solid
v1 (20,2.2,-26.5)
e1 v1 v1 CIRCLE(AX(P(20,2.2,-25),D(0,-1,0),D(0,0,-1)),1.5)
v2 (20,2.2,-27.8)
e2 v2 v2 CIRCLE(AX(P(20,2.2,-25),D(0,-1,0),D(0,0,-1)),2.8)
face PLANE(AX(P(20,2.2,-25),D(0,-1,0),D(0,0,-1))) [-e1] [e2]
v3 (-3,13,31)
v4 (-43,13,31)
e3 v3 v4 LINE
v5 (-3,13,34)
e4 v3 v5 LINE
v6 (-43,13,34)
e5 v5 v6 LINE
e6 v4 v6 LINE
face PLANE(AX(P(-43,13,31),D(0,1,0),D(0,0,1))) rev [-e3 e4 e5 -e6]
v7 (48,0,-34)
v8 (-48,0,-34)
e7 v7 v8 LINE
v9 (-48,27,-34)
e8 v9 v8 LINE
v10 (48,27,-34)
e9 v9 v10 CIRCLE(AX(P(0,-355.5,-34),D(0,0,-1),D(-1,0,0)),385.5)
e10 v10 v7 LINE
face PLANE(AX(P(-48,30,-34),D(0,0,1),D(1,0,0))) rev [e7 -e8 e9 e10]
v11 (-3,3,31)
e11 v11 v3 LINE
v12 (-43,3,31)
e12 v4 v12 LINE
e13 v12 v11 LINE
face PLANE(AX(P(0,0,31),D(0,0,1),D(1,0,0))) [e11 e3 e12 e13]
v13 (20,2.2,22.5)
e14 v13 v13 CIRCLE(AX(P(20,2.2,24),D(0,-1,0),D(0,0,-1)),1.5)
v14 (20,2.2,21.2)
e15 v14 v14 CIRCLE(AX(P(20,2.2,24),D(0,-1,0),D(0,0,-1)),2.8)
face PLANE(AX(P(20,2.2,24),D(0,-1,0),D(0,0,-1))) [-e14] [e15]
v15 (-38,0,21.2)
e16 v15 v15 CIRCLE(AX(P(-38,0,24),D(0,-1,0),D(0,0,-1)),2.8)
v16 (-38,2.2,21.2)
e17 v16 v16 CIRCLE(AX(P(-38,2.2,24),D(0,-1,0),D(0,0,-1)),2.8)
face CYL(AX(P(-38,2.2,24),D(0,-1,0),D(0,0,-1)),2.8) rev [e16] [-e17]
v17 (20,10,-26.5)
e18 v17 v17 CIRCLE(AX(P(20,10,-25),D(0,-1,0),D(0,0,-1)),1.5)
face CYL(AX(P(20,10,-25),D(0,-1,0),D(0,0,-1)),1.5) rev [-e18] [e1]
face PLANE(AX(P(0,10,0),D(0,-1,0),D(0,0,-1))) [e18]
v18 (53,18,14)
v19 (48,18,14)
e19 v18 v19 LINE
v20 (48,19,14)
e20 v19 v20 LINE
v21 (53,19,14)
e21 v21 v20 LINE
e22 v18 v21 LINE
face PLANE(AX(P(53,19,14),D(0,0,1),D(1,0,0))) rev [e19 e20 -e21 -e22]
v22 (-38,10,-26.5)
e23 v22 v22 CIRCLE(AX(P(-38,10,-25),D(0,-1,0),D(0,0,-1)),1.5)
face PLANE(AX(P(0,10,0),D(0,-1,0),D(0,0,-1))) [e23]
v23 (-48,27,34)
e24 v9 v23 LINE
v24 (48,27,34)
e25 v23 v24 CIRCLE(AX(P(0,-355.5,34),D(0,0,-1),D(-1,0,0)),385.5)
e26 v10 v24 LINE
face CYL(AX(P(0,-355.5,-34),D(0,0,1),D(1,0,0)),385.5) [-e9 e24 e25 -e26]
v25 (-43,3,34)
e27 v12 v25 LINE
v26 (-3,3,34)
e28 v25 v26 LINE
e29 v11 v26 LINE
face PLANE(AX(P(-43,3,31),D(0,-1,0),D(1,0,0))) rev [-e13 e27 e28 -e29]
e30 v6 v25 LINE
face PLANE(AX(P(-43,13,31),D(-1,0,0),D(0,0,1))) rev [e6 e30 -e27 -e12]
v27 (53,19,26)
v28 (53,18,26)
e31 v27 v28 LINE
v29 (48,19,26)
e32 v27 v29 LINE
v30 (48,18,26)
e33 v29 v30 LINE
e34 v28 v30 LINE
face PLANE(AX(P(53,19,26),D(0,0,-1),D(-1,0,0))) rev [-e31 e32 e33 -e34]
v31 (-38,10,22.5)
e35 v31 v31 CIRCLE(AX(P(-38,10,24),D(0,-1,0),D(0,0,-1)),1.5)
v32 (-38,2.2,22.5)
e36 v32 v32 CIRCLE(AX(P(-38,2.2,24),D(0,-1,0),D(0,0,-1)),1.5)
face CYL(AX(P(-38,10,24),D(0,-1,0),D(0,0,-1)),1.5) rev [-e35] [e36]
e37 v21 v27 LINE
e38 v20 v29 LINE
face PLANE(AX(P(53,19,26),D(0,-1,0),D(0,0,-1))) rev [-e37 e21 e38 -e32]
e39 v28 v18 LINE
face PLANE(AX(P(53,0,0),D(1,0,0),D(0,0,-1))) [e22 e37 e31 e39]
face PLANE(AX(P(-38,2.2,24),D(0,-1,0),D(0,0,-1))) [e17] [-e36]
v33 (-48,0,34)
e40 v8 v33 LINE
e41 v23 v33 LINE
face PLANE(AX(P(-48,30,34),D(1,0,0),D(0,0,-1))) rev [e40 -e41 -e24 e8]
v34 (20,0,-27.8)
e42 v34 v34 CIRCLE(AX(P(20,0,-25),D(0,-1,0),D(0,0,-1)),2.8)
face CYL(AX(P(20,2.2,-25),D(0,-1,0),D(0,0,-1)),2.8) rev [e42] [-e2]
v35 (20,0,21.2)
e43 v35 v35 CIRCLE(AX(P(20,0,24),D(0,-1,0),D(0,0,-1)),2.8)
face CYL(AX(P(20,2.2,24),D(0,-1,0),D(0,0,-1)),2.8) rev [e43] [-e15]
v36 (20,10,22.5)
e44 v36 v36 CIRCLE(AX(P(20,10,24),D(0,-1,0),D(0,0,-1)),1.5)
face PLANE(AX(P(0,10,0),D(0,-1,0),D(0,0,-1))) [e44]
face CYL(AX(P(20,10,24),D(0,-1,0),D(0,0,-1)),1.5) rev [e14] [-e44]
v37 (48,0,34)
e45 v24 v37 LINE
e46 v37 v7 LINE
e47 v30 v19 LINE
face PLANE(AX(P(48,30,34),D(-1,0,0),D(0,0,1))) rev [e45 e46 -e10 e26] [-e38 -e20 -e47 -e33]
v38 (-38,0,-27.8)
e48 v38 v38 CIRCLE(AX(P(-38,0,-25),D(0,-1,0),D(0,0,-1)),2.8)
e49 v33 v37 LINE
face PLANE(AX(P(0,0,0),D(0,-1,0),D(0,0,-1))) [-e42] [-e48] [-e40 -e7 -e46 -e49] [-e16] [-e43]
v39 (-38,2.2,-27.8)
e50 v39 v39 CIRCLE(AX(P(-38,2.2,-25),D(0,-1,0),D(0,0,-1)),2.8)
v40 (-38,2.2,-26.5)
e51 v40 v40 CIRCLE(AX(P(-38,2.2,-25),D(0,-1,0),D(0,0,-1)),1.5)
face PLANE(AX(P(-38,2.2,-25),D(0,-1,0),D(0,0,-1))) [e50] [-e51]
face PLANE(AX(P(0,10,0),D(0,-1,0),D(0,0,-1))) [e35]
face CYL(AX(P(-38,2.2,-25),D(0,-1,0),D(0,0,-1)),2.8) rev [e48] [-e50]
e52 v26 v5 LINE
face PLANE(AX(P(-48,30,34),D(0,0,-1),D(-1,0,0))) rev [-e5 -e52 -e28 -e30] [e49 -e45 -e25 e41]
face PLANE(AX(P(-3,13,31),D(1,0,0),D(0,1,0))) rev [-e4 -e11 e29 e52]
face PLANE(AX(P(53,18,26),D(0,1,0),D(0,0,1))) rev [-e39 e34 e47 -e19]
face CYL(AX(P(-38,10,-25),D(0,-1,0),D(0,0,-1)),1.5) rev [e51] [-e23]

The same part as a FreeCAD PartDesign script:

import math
import FreeCAD as App
import Part
import Sketcher

V = App.Vector
Q = App.Units.Quantity


def add_polygon(sketch, points):
    """Adds a closed chain of lines whose ends are joined by coincident constraints."""
    first, n = sketch.GeometryCount, len(points)
    for a, b in zip(points, points[1:] + points[:1]):
        sketch.addGeometry(Part.LineSegment(App.Vector(*a, 0), App.Vector(*b, 0)), False)
    for i in range(n):
        sketch.addConstraint(Sketcher.Constraint("Coincident", first + i, 2, first + (i + 1) % n, 1))

doc = App.newDocument("Part")
body = doc.addObject("PartDesign::Body", "Body")

# Sketch on XZ plane
sketch1 = body.newObject("Sketcher::SketchObject", "Sketch")
sketch1.AttachmentSupport = (doc.getObject("XZ_Plane"), [""])
sketch1.MapMode = "FlatFace"
add_polygon(sketch1, [(-48, -34), (-48, 34), (48, 34), (48, -34)])  # lines 0-3
sketch1.addConstraint([
    Sketcher.Constraint("Vertical", 0),
    Sketcher.Constraint("Horizontal", 1),
    Sketcher.Constraint("Vertical", 2),
    Sketcher.Constraint("Horizontal", 3),
    Sketcher.Constraint("Symmetric", 0, 2, 2, 2, -1, 1),
    Sketcher.Constraint("DistanceX", 1, 1, 1, 2, Q("96 mm")),
    Sketcher.Constraint("DistanceY", 0, 1, 0, 2, Q("68 mm")),
])
pad1 = body.newObject("PartDesign::Pad", "Pad")
pad1.Profile = sketch1
pad1.Length = 30
pad1.Reversed = True

# Sketch on XY plane
sketch2 = body.newObject("Sketcher::SketchObject", "Sketch001")
sketch2.AttachmentSupport = (doc.getObject("XY_Plane"), [""])
sketch2.MapMode = "FlatFace"
sketch2.AttachmentOffset = App.Placement(V(0, 0, 34), App.Rotation())
sketch2.addGeometry([
    Part.LineSegment(V(-48, 41, 0), V(-48, 27, 0)),
    Part.ArcOfCircle(Part.Circle(V(0, -356, 0), V(0, 0, 1), 386), math.radians(82.85), math.radians(97.15)),
    Part.LineSegment(V(48, 27, 0), V(48, 41, 0)),
    Part.LineSegment(V(48, 41, 0), V(-48, 41, 0)),
], False)
sketch2.addConstraint([
    Sketcher.Constraint("Coincident", 0, 2, 1, 2),
    Sketcher.Constraint("Coincident", 1, 1, 2, 1),
    Sketcher.Constraint("Coincident", 2, 2, 3, 1),
    Sketcher.Constraint("Coincident", 3, 2, 0, 1),
    Sketcher.Constraint("Vertical", 0),
    Sketcher.Constraint("Vertical", 2),
    Sketcher.Constraint("Horizontal", 3),
    Sketcher.Constraint("Symmetric", 0, 2, 1, 1, -2),
    Sketcher.Constraint("Radius", 1, Q("385.5 mm")),
    Sketcher.Constraint("DistanceX", 3, 2, 3, 1, Q("96 mm")),
    Sketcher.Constraint("DistanceY", -1, 1, 0, 2, Q("27 mm")),
    Sketcher.Constraint("DistanceY", 0, 2, 0, 1, Q("14.348676 mm")),
])
pocket1 = body.newObject("PartDesign::Pocket", "Pocket")
pocket1.Profile = sketch2
pocket1.Type = "ThroughAll"

# Sketch on XY plane
sketch3 = body.newObject("Sketcher::SketchObject", "Sketch002")
sketch3.AttachmentSupport = (doc.getObject("XY_Plane"), [""])
sketch3.MapMode = "FlatFace"
sketch3.AttachmentOffset = App.Placement(V(0, 0, 34), App.Rotation())
add_polygon(sketch3, [(-43, 13), (-43, 3), (-3, 3), (-3, 13)])  # lines 0-3
sketch3.addConstraint([
    Sketcher.Constraint("Vertical", 0),
    Sketcher.Constraint("Horizontal", 1),
    Sketcher.Constraint("Vertical", 2),
    Sketcher.Constraint("Horizontal", 3),
    Sketcher.Constraint("DistanceX", 1, 1, 1, 2, Q("40 mm")),
    Sketcher.Constraint("DistanceY", 0, 2, 0, 1, Q("10 mm")),
    Sketcher.Constraint("DistanceX", 0, 2, -1, 1, Q("43 mm")),
    Sketcher.Constraint("DistanceY", -1, 1, 0, 2, Q("3 mm")),
])
pocket2 = body.newObject("PartDesign::Pocket", "Pocket001")
pocket2.Profile = sketch3
pocket2.Length = 3

# Sketch on YZ plane
sketch4 = body.newObject("Sketcher::SketchObject", "Sketch003")
sketch4.AttachmentSupport = (doc.getObject("YZ_Plane"), [""])
sketch4.MapMode = "FlatFace"
sketch4.AttachmentOffset = App.Placement(V(0, 0, 48), App.Rotation())
add_polygon(sketch4, [(19, 26), (18, 26), (18, 14), (19, 14)])  # lines 0-3
sketch4.addConstraint([
    Sketcher.Constraint("Horizontal", 0),
    Sketcher.Constraint("Vertical", 1),
    Sketcher.Constraint("Horizontal", 2),
    Sketcher.Constraint("Vertical", 3),
    Sketcher.Constraint("DistanceX", 0, 2, 0, 1, Q("1 mm")),
    Sketcher.Constraint("DistanceY", 1, 2, 1, 1, Q("12 mm")),
    Sketcher.Constraint("DistanceX", -1, 1, 0, 2, Q("18 mm")),
    Sketcher.Constraint("DistanceY", -1, 1, 0, 2, Q("26 mm")),
])
pad2 = body.newObject("PartDesign::Pad", "Pad001")
pad2.Profile = sketch4
pad2.Length = 5

# Sketch on XZ plane
sketch5 = body.newObject("Sketcher::SketchObject", "Sketch004")
sketch5.AttachmentSupport = (doc.getObject("XZ_Plane"), [""])
sketch5.MapMode = "FlatFace"
sketch5.addGeometry([
    Part.Circle(V(-38, 24, 0), V(0, 0, 1), 2.8),  # 0
    Part.Circle(V(-38, 24, 0), V(0, 0, 1), 1.5),  # 1
    Part.Circle(V(20, 24, 0), V(0, 0, 1), 2.8),  # 2
    Part.Circle(V(20, 24, 0), V(0, 0, 1), 1.5),  # 3
    Part.Circle(V(20, -25, 0), V(0, 0, 1), 2.8),  # 4
    Part.Circle(V(20, -25, 0), V(0, 0, 1), 1.5),  # 5
    Part.Circle(V(-38, -25, 0), V(0, 0, 1), 2.8),  # 6
    Part.Circle(V(-38, -25, 0), V(0, 0, 1), 1.5),  # 7
], False)
sketch5.addConstraint([
    Sketcher.Constraint("Coincident", 1, 3, 0, 3),
    Sketcher.Constraint("Coincident", 3, 3, 2, 3),
    Sketcher.Constraint("Coincident", 5, 3, 4, 3),
    Sketcher.Constraint("Coincident", 7, 3, 6, 3),
    Sketcher.Constraint("Equal", 0, 2),
    Sketcher.Constraint("Equal", 1, 3),
    Sketcher.Constraint("Equal", 2, 4),
    Sketcher.Constraint("Equal", 3, 5),
    Sketcher.Constraint("Equal", 4, 6),
    Sketcher.Constraint("Equal", 5, 7),
    Sketcher.Constraint("Horizontal", 1, 3, 2, 3),
    Sketcher.Constraint("Horizontal", 5, 3, 6, 3),
    Sketcher.Constraint("Vertical", 3, 3, 4, 3),
    Sketcher.Constraint("Vertical", 1, 3, 6, 3),
    Sketcher.Constraint("Diameter", 1, Q("3 mm")),
    Sketcher.Constraint("Diameter", 0, Q("5.6 mm")),
    Sketcher.Constraint("DistanceX", 0, 3, -1, 1, Q("38 mm")),
    Sketcher.Constraint("DistanceY", -1, 1, 0, 3, Q("24 mm")),
    Sketcher.Constraint("DistanceX", -1, 1, 2, 3, Q("20 mm")),
    Sketcher.Constraint("DistanceY", 4, 3, -1, 1, Q("25 mm")),
])
pocket3 = body.newObject("PartDesign::Pocket", "Pocket002")
pocket3.Profile = sketch5
pocket3.Length = 2.2

# Sketch on XZ plane
sketch6 = body.newObject("Sketcher::SketchObject", "Sketch005")
sketch6.AttachmentSupport = (doc.getObject("XZ_Plane"), [""])
sketch6.MapMode = "FlatFace"
sketch6.addGeometry([
    Part.Circle(V(-38, 24, 0), V(0, 0, 1), 1.5),
    Part.Circle(V(20, 24, 0), V(0, 0, 1), 1.5),
    Part.Circle(V(-38, -25, 0), V(0, 0, 1), 1.5),
    Part.Circle(V(20, -25, 0), V(0, 0, 1), 1.5),
], False)
sketch6.addConstraint([
    Sketcher.Constraint("Equal", 0, 1),
    Sketcher.Constraint("Equal", 1, 2),
    Sketcher.Constraint("Equal", 2, 3),
    Sketcher.Constraint("Horizontal", 0, 3, 1, 3),
    Sketcher.Constraint("Horizontal", 2, 3, 3, 3),
    Sketcher.Constraint("Vertical", 0, 3, 2, 3),
    Sketcher.Constraint("Vertical", 1, 3, 3, 3),
    Sketcher.Constraint("Diameter", 0, Q("3 mm")),
    Sketcher.Constraint("DistanceX", 0, 3, -1, 1, Q("38 mm")),
    Sketcher.Constraint("DistanceY", -1, 1, 0, 3, Q("24 mm")),
    Sketcher.Constraint("DistanceX", -1, 1, 1, 3, Q("20 mm")),
    Sketcher.Constraint("DistanceY", 2, 3, -1, 1, Q("25 mm")),
])
pocket4 = body.newObject("PartDesign::Pocket", "Pocket003")
pocket4.Profile = sketch6
pocket4.Length = 10

doc.recompute()
